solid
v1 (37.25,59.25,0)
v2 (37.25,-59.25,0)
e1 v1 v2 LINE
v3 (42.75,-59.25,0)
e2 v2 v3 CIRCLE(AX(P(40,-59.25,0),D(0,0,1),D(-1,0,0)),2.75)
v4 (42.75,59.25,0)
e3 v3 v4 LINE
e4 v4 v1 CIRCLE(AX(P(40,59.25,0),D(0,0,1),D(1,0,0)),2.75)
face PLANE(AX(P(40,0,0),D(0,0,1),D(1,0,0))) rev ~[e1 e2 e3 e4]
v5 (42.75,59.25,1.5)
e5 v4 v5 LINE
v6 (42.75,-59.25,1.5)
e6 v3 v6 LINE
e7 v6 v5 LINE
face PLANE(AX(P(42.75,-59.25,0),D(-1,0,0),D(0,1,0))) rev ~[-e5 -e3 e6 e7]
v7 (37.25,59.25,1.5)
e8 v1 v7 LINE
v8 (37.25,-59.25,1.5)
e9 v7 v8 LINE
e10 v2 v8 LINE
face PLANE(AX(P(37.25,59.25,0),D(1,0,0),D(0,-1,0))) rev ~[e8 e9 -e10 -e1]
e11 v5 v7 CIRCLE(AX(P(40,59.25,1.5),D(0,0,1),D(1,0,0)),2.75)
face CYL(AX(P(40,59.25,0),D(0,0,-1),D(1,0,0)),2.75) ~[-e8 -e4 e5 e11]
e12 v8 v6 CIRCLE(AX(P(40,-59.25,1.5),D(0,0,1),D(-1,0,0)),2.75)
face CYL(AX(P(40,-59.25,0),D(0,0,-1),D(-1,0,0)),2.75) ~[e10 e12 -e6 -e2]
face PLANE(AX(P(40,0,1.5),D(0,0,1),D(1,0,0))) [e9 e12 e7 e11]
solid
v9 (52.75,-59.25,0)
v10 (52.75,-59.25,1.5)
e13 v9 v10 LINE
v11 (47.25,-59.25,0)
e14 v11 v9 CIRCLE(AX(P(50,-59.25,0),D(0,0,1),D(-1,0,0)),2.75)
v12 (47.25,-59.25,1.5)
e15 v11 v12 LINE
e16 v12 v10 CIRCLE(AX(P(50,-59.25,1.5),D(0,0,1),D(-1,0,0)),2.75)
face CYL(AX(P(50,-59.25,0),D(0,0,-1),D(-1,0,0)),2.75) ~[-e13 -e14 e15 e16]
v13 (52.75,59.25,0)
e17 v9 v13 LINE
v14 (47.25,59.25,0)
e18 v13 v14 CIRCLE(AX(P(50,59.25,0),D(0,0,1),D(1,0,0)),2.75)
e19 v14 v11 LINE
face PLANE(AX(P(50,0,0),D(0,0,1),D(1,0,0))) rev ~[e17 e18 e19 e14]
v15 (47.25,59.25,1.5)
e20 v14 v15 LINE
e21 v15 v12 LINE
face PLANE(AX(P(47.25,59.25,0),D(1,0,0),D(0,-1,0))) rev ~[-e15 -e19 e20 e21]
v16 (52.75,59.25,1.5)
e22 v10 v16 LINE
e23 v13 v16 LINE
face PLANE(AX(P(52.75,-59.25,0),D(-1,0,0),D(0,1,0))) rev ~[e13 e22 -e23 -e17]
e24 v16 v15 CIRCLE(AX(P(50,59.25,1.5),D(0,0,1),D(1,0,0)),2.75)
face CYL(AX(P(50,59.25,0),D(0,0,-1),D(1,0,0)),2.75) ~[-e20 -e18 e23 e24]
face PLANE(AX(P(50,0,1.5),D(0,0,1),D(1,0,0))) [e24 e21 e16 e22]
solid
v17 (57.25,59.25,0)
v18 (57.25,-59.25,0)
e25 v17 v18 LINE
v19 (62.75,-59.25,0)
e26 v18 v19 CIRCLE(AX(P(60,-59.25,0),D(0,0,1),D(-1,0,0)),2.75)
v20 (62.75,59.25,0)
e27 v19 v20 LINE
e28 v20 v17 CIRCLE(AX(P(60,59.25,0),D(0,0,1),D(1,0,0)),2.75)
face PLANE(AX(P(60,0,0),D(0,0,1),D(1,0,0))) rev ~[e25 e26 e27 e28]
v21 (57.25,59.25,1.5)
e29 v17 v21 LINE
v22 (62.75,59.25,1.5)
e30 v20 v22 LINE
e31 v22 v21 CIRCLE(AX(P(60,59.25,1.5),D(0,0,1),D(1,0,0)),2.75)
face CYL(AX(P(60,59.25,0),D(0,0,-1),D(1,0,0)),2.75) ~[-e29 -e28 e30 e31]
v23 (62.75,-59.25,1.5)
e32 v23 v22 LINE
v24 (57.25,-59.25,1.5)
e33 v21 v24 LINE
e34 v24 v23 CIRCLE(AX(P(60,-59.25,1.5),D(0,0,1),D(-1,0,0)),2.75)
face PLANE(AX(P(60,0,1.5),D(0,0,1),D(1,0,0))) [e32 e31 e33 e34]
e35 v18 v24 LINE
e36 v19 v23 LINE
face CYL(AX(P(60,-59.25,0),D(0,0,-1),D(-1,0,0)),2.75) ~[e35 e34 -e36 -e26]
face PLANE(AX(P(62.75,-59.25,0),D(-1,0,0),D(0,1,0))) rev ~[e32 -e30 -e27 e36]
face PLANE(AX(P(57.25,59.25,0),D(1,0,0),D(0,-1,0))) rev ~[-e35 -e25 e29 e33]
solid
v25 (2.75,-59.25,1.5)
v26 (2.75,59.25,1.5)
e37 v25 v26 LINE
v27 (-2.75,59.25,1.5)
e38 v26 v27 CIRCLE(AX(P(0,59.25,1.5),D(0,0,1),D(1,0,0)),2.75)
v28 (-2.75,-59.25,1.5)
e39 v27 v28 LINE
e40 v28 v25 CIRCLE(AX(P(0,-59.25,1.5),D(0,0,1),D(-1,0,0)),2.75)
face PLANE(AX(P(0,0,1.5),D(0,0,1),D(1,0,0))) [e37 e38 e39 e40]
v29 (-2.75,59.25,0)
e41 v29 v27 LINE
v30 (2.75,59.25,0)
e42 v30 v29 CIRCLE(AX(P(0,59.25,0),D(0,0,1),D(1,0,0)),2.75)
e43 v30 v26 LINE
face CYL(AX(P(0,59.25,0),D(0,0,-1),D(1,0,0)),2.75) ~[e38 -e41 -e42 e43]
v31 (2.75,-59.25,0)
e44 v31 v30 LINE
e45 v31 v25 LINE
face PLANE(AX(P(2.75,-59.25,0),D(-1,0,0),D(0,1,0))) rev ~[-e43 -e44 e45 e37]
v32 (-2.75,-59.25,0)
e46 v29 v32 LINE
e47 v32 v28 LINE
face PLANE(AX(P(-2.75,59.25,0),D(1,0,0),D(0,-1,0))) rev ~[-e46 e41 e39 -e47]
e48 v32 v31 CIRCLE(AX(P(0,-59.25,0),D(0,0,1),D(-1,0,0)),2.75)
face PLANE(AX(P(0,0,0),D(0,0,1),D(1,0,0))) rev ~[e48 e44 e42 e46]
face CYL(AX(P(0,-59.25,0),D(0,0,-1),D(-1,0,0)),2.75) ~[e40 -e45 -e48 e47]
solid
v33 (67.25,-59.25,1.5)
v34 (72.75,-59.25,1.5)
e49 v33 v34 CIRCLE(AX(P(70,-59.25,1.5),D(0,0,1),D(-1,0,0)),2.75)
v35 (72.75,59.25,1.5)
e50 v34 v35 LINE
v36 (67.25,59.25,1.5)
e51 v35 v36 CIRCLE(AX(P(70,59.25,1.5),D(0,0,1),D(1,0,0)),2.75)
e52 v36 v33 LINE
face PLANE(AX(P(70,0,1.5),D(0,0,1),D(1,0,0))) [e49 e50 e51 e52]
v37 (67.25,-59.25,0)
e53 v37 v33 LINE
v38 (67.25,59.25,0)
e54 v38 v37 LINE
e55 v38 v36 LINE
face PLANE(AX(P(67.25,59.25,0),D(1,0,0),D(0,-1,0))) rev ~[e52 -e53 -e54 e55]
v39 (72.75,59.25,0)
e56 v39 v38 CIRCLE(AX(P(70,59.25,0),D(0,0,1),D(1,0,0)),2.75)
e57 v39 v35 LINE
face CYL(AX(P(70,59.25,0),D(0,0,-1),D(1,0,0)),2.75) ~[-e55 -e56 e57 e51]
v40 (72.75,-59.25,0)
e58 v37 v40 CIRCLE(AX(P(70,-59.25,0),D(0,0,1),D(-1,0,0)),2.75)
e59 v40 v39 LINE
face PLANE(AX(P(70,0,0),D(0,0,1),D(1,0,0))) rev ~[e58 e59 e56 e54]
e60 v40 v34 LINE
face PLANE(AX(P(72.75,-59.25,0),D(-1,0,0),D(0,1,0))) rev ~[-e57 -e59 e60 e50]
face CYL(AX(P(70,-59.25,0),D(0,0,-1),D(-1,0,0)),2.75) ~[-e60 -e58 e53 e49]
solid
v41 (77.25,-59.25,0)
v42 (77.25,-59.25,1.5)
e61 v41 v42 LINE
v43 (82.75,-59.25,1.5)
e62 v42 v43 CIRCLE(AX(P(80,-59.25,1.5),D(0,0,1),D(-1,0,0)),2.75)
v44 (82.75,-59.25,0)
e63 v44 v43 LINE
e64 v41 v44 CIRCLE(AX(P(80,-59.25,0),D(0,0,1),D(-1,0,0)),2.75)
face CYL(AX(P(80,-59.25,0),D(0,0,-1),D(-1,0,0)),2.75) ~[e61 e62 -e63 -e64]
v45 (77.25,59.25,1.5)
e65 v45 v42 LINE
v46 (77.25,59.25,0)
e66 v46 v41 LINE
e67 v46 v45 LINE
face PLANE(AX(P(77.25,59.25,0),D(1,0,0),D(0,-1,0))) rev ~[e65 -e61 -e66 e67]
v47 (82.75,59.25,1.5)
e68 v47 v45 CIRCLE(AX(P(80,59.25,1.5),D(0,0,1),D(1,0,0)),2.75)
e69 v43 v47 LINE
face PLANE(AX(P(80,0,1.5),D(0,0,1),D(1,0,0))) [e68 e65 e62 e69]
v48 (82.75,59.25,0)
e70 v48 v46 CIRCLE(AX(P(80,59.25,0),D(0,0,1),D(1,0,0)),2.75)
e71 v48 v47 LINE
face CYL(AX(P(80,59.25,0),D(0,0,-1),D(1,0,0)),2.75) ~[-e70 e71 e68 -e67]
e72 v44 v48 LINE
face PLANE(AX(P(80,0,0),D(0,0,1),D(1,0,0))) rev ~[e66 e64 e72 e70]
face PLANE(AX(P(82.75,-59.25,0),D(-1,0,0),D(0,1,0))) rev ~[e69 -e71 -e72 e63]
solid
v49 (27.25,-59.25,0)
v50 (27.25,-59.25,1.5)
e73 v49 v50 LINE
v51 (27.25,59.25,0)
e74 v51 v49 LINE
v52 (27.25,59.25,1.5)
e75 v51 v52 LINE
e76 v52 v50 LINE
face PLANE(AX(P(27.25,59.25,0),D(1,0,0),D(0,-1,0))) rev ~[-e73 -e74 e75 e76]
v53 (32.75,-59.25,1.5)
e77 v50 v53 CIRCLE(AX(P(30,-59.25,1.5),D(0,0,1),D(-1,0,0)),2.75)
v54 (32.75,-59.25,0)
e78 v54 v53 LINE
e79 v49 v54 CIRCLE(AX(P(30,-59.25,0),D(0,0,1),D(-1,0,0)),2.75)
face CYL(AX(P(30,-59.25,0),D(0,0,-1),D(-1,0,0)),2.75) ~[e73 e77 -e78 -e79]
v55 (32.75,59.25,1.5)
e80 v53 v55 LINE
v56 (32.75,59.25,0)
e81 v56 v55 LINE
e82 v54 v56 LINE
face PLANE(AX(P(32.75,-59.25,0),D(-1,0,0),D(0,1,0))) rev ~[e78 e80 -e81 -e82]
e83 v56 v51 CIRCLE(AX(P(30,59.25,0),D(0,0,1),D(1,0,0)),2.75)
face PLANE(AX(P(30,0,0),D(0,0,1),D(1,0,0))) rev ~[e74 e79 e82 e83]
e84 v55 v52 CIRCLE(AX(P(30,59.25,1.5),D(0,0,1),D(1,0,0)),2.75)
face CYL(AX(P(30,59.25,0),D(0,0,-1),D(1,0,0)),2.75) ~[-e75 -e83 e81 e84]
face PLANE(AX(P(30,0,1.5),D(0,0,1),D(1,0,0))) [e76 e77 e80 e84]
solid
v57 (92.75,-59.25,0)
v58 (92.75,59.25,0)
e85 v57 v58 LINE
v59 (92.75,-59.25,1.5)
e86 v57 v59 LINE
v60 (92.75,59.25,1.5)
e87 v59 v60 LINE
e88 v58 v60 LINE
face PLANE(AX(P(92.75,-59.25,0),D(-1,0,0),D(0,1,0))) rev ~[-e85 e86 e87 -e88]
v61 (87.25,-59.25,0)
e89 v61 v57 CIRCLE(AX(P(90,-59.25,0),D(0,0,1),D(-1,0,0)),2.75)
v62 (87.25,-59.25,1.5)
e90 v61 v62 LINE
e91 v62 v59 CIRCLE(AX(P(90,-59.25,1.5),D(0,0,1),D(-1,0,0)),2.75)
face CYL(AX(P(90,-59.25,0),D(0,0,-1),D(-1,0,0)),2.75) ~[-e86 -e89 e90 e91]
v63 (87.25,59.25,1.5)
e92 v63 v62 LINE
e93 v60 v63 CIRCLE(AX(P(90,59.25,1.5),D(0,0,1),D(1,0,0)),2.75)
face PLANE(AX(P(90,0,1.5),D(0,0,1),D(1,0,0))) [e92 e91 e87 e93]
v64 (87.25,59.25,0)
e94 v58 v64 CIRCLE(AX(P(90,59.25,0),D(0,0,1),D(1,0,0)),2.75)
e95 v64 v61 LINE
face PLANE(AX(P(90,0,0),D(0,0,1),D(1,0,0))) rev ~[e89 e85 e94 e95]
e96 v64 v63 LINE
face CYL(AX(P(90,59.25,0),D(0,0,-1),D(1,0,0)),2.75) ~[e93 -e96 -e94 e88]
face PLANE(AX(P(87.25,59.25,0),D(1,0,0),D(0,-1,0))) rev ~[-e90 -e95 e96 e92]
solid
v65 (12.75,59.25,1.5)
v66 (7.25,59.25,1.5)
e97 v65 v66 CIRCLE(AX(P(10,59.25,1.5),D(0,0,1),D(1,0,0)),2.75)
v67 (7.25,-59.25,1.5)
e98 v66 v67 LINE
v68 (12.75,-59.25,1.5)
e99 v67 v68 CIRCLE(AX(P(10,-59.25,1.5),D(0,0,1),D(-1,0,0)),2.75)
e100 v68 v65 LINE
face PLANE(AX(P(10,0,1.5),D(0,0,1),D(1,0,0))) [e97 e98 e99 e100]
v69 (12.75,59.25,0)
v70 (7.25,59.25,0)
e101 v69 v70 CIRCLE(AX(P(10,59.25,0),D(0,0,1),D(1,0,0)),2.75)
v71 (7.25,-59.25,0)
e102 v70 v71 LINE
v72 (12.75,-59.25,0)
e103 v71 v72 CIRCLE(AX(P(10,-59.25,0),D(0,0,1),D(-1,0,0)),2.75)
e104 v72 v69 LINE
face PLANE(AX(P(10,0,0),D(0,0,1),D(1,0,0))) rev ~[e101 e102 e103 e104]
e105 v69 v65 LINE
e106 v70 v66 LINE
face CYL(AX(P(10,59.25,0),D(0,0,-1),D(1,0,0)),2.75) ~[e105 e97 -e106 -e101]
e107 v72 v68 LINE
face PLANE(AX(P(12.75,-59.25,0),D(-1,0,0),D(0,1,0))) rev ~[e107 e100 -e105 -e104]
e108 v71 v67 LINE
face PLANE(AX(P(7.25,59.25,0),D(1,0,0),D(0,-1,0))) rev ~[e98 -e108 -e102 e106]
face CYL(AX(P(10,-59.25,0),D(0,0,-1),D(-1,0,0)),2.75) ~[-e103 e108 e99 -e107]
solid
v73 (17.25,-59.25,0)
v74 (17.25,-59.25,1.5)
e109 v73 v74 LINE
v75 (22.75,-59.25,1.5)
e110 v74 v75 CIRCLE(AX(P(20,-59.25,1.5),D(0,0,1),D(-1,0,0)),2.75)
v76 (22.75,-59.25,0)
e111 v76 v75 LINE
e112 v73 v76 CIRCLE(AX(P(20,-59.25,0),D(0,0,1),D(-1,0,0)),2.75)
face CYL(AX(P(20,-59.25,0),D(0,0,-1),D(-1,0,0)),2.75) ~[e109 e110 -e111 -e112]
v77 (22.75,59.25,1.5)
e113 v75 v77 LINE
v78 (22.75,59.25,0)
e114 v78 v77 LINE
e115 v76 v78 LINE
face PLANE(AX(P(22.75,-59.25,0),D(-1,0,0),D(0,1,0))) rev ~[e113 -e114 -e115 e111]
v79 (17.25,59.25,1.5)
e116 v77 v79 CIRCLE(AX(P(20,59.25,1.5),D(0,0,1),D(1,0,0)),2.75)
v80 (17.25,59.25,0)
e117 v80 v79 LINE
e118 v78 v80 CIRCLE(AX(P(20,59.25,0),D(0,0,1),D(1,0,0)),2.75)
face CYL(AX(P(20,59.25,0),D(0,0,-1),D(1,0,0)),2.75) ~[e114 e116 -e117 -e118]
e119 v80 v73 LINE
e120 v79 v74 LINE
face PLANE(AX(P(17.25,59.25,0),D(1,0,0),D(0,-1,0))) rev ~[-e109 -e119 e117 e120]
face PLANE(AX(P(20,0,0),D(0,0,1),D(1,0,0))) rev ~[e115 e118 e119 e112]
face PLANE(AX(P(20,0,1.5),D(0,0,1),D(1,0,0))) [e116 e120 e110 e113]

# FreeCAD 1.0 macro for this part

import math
import FreeCAD as App
import Part
import Sketcher

V = App.Vector
Q = App.Units.Quantity

doc = App.newDocument("Part")
params = doc.addObject("Spreadsheet::Sheet", "Params")
for row, (alias, value) in enumerate([
    ("sketch1_radius", "2.75 mm"),
    ("sketch1_height", "118.5 mm"),
    ("pad1_length", "1.5 mm"),
], start=1):
    params.set(f"A{row}", alias)
    params.set(f"B{row}", "=" + value)
    params.setAlias(f"B{row}", alias)

body = doc.addObject("PartDesign::Body", "Body")
body.AllowCompound = True

sketch1 = doc.addObject("Sketcher::SketchObject", "Sketch")
body.addObject(sketch1)
sketch1.AttachmentSupport = (doc.XY_Plane, [""])
sketch1.MapMode = "FlatFace"
sketch1.addGeometry([
    Part.LineSegment(V(-2.8, 59.2, 0), V(-2.8, -59.2, 0)),
    Part.ArcOfCircle(Part.Circle(V(0, -59.2, 0), V(0, 0, 1), 2.8), math.radians(180), math.radians(360)),
    Part.LineSegment(V(2.8, -59.2, 0), V(2.8, 59.2, 0)),
    Part.ArcOfCircle(Part.Circle(V(0, 59.2, 0), V(0, 0, 1), 2.8), math.radians(0), math.radians(180)),
    Part.ArcOfCircle(Part.Circle(V(10, -59.2, 0), V(0, 0, 1), 2.8), math.radians(180), math.radians(360)),
    Part.LineSegment(V(12.8, -59.2, 0), V(12.8, 59.2, 0)),
    Part.ArcOfCircle(Part.Circle(V(10, 59.2, 0), V(0, 0, 1), 2.8), math.radians(0), math.radians(180)),
    Part.LineSegment(V(7.2, 59.2, 0), V(7.2, -59.2, 0)),
    Part.ArcOfCircle(Part.Circle(V(20, -59.2, 0), V(0, 0, 1), 2.8), math.radians(180), math.radians(360)),
    Part.LineSegment(V(22.8, -59.2, 0), V(22.8, 59.2, 0)),
    Part.ArcOfCircle(Part.Circle(V(20, 59.2, 0), V(0, 0, 1), 2.8), math.radians(0), math.radians(180)),
    Part.LineSegment(V(17.2, 59.2, 0), V(17.2, -59.2, 0)),
    Part.ArcOfCircle(Part.Circle(V(30, -59.2, 0), V(0, 0, 1), 2.8), math.radians(180), math.radians(360)),
    Part.LineSegment(V(32.8, -59.2, 0), V(32.8, 59.2, 0)),
    Part.ArcOfCircle(Part.Circle(V(30, 59.2, 0), V(0, 0, 1), 2.8), math.radians(0), math.radians(180)),
    Part.LineSegment(V(27.2, 59.2, 0), V(27.2, -59.2, 0)),
    Part.ArcOfCircle(Part.Circle(V(40, -59.2, 0), V(0, 0, 1), 2.8), math.radians(180), math.radians(360)),
    Part.LineSegment(V(42.8, -59.2, 0), V(42.8, 59.2, 0)),
    Part.ArcOfCircle(Part.Circle(V(40, 59.2, 0), V(0, 0, 1), 2.8), math.radians(0), math.radians(180)),
    Part.LineSegment(V(37.2, 59.2, 0), V(37.2, -59.2, 0)),
    Part.ArcOfCircle(Part.Circle(V(50, -59.2, 0), V(0, 0, 1), 2.8), math.radians(180), math.radians(360)),
    Part.LineSegment(V(52.8, -59.2, 0), V(52.8, 59.2, 0)),
    Part.ArcOfCircle(Part.Circle(V(50, 59.2, 0), V(0, 0, 1), 2.8), math.radians(0), math.radians(180)),
    Part.LineSegment(V(47.2, 59.2, 0), V(47.2, -59.2, 0)),
    Part.ArcOfCircle(Part.Circle(V(60, -59.2, 0), V(0, 0, 1), 2.8), math.radians(180), math.radians(360)),
    Part.LineSegment(V(62.8, -59.2, 0), V(62.8, 59.2, 0)),
    Part.ArcOfCircle(Part.Circle(V(60, 59.2, 0), V(0, 0, 1), 2.8), math.radians(0), math.radians(180)),
    Part.LineSegment(V(57.2, 59.2, 0), V(57.2, -59.2, 0)),
    Part.ArcOfCircle(Part.Circle(V(70, -59.2, 0), V(0, 0, 1), 2.8), math.radians(180), math.radians(360)),
    Part.LineSegment(V(72.8, -59.2, 0), V(72.8, 59.2, 0)),
    Part.ArcOfCircle(Part.Circle(V(70, 59.2, 0), V(0, 0, 1), 2.8), math.radians(0), math.radians(180)),
    Part.LineSegment(V(67.2, 59.2, 0), V(67.2, -59.2, 0)),
    Part.ArcOfCircle(Part.Circle(V(80, -59.2, 0), V(0, 0, 1), 2.8), math.radians(180), math.radians(360)),
    Part.LineSegment(V(82.8, -59.2, 0), V(82.8, 59.2, 0)),
    Part.ArcOfCircle(Part.Circle(V(80, 59.2, 0), V(0, 0, 1), 2.8), math.radians(0), math.radians(180)),
    Part.LineSegment(V(77.2, 59.2, 0), V(77.2, -59.2, 0)),
    Part.ArcOfCircle(Part.Circle(V(90, -59.2, 0), V(0, 0, 1), 2.8), math.radians(180), math.radians(360)),
    Part.LineSegment(V(92.8, -59.2, 0), V(92.8, 59.2, 0)),
    Part.ArcOfCircle(Part.Circle(V(90, 59.2, 0), V(0, 0, 1), 2.8), math.radians(0), math.radians(180)),
    Part.LineSegment(V(87.2, 59.2, 0), V(87.2, -59.2, 0)),
], False)
sketch1.addConstraint([
    Sketcher.Constraint("Tangent", 0, 2, 1, 1),
    Sketcher.Constraint("Tangent", 1, 2, 2, 1),
    Sketcher.Constraint("Tangent", 2, 2, 3, 1),
    Sketcher.Constraint("Tangent", 3, 2, 0, 1),
    Sketcher.Constraint("Tangent", 4, 2, 5, 1),
    Sketcher.Constraint("Tangent", 5, 2, 6, 1),
    Sketcher.Constraint("Tangent", 6, 2, 7, 1),
    Sketcher.Constraint("Tangent", 7, 2, 4, 1),
    Sketcher.Constraint("Tangent", 8, 2, 9, 1),
    Sketcher.Constraint("Tangent", 9, 2, 10, 1),
    Sketcher.Constraint("Tangent", 10, 2, 11, 1),
    Sketcher.Constraint("Tangent", 11, 2, 8, 1),
    Sketcher.Constraint("Tangent", 12, 2, 13, 1),
    Sketcher.Constraint("Tangent", 13, 2, 14, 1),
    Sketcher.Constraint("Tangent", 14, 2, 15, 1),
    Sketcher.Constraint("Tangent", 15, 2, 12, 1),
    Sketcher.Constraint("Tangent", 16, 2, 17, 1),
    Sketcher.Constraint("Tangent", 17, 2, 18, 1),
    Sketcher.Constraint("Tangent", 18, 2, 19, 1),
    Sketcher.Constraint("Tangent", 19, 2, 16, 1),
    Sketcher.Constraint("Tangent", 20, 2, 21, 1),
    Sketcher.Constraint("Tangent", 21, 2, 22, 1),
    Sketcher.Constraint("Tangent", 22, 2, 23, 1),
    Sketcher.Constraint("Tangent", 23, 2, 20, 1),
    Sketcher.Constraint("Tangent", 24, 2, 25, 1),
    Sketcher.Constraint("Tangent", 25, 2, 26, 1),
    Sketcher.Constraint("Tangent", 26, 2, 27, 1),
    Sketcher.Constraint("Tangent", 27, 2, 24, 1),
    Sketcher.Constraint("Tangent", 28, 2, 29, 1),
    Sketcher.Constraint("Tangent", 29, 2, 30, 1),
    Sketcher.Constraint("Tangent", 30, 2, 31, 1),
    Sketcher.Constraint("Tangent", 31, 2, 28, 1),
    Sketcher.Constraint("Tangent", 32, 2, 33, 1),
    Sketcher.Constraint("Tangent", 33, 2, 34, 1),
    Sketcher.Constraint("Tangent", 34, 2, 35, 1),
    Sketcher.Constraint("Tangent", 35, 2, 32, 1),
    Sketcher.Constraint("Tangent", 36, 2, 37, 1),
    Sketcher.Constraint("Tangent", 37, 2, 38, 1),
    Sketcher.Constraint("Tangent", 38, 2, 39, 1),
    Sketcher.Constraint("Tangent", 39, 2, 36, 1),
    Sketcher.Constraint("Vertical", 0),
    Sketcher.Constraint("Vertical", 2),
    Sketcher.Constraint("Vertical", 5),
    Sketcher.Constraint("Vertical", 7),
    Sketcher.Constraint("Vertical", 9),
    Sketcher.Constraint("Vertical", 11),
    Sketcher.Constraint("Vertical", 13),
    Sketcher.Constraint("Vertical", 15),
    Sketcher.Constraint("Vertical", 17),
    Sketcher.Constraint("Vertical", 19),
    Sketcher.Constraint("Vertical", 21),
    Sketcher.Constraint("Vertical", 23),
    Sketcher.Constraint("Vertical", 25),
    Sketcher.Constraint("Vertical", 27),
    Sketcher.Constraint("Vertical", 29),
    Sketcher.Constraint("Vertical", 31),
    Sketcher.Constraint("Vertical", 33),
    Sketcher.Constraint("Vertical", 35),
    Sketcher.Constraint("Vertical", 37),
    Sketcher.Constraint("Vertical", 39),
    Sketcher.Constraint("Equal", 3, 4),
    Sketcher.Constraint("Equal", 6, 8),
    Sketcher.Constraint("Equal", 10, 12),
    Sketcher.Constraint("Equal", 14, 16),
    Sketcher.Constraint("Equal", 18, 20),
    Sketcher.Constraint("Equal", 22, 24),
    Sketcher.Constraint("Equal", 26, 28),
    Sketcher.Constraint("Equal", 30, 32),
    Sketcher.Constraint("Equal", 34, 36),
    Sketcher.Constraint("Symmetric", 1, 3, 3, 3, -1, 1),
    Sketcher.Constraint("Horizontal", 1, 3, 4, 3),
    Sketcher.Constraint("Horizontal", 3, 3, 6, 3),
    Sketcher.Constraint("Horizontal", 4, 3, 8, 3),
    Sketcher.Constraint("Horizontal", 6, 3, 10, 3),
    Sketcher.Constraint("Horizontal", 8, 3, 12, 3),
    Sketcher.Constraint("Horizontal", 10, 3, 14, 3),
    Sketcher.Constraint("Horizontal", 12, 3, 16, 3),
    Sketcher.Constraint("Horizontal", 14, 3, 18, 3),
    Sketcher.Constraint("Horizontal", 16, 3, 20, 3),
    Sketcher.Constraint("Horizontal", 18, 3, 22, 3),
    Sketcher.Constraint("Horizontal", 20, 3, 24, 3),
    Sketcher.Constraint("Horizontal", 22, 3, 26, 3),
    Sketcher.Constraint("Horizontal", 24, 3, 28, 3),
    Sketcher.Constraint("Horizontal", 26, 3, 30, 3),
    Sketcher.Constraint("Horizontal", 28, 3, 32, 3),
    Sketcher.Constraint("Horizontal", 30, 3, 34, 3),
    Sketcher.Constraint("Horizontal", 32, 3, 36, 3),
    Sketcher.Constraint("Horizontal", 34, 3, 38, 3),
    Sketcher.Constraint("Radius", 1, Q("2.75 mm")),
    Sketcher.Constraint("DistanceY", 0, 2, 0, 1, Q("118.5 mm")),
    Sketcher.Constraint("DistanceX", -1, 1, 4, 3, Q("10 mm")),
    Sketcher.Constraint("DistanceX", -1, 1, 8, 3, Q("20 mm")),
    Sketcher.Constraint("DistanceX", -1, 1, 12, 3, Q("30 mm")),
    Sketcher.Constraint("DistanceX", -1, 1, 16, 3, Q("40 mm")),
    Sketcher.Constraint("DistanceX", -1, 1, 20, 3, Q("50 mm")),
    Sketcher.Constraint("DistanceX", -1, 1, 24, 3, Q("60 mm")),
    Sketcher.Constraint("DistanceX", -1, 1, 28, 3, Q("70 mm")),
    Sketcher.Constraint("DistanceX", -1, 1, 32, 3, Q("80 mm")),
    Sketcher.Constraint("DistanceX", -1, 1, 36, 3, Q("90 mm")),
])
sketch1.setExpression("Constraints[88]", "Params.sketch1_radius")
sketch1.setExpression("Constraints[89]", "Params.sketch1_height")
pad1 = doc.addObject("PartDesign::Pad", "Pad")
body.addObject(pad1)
pad1.Profile = sketch1
pad1.setExpression("Length", "Params.pad1_length")

doc.recompute()
